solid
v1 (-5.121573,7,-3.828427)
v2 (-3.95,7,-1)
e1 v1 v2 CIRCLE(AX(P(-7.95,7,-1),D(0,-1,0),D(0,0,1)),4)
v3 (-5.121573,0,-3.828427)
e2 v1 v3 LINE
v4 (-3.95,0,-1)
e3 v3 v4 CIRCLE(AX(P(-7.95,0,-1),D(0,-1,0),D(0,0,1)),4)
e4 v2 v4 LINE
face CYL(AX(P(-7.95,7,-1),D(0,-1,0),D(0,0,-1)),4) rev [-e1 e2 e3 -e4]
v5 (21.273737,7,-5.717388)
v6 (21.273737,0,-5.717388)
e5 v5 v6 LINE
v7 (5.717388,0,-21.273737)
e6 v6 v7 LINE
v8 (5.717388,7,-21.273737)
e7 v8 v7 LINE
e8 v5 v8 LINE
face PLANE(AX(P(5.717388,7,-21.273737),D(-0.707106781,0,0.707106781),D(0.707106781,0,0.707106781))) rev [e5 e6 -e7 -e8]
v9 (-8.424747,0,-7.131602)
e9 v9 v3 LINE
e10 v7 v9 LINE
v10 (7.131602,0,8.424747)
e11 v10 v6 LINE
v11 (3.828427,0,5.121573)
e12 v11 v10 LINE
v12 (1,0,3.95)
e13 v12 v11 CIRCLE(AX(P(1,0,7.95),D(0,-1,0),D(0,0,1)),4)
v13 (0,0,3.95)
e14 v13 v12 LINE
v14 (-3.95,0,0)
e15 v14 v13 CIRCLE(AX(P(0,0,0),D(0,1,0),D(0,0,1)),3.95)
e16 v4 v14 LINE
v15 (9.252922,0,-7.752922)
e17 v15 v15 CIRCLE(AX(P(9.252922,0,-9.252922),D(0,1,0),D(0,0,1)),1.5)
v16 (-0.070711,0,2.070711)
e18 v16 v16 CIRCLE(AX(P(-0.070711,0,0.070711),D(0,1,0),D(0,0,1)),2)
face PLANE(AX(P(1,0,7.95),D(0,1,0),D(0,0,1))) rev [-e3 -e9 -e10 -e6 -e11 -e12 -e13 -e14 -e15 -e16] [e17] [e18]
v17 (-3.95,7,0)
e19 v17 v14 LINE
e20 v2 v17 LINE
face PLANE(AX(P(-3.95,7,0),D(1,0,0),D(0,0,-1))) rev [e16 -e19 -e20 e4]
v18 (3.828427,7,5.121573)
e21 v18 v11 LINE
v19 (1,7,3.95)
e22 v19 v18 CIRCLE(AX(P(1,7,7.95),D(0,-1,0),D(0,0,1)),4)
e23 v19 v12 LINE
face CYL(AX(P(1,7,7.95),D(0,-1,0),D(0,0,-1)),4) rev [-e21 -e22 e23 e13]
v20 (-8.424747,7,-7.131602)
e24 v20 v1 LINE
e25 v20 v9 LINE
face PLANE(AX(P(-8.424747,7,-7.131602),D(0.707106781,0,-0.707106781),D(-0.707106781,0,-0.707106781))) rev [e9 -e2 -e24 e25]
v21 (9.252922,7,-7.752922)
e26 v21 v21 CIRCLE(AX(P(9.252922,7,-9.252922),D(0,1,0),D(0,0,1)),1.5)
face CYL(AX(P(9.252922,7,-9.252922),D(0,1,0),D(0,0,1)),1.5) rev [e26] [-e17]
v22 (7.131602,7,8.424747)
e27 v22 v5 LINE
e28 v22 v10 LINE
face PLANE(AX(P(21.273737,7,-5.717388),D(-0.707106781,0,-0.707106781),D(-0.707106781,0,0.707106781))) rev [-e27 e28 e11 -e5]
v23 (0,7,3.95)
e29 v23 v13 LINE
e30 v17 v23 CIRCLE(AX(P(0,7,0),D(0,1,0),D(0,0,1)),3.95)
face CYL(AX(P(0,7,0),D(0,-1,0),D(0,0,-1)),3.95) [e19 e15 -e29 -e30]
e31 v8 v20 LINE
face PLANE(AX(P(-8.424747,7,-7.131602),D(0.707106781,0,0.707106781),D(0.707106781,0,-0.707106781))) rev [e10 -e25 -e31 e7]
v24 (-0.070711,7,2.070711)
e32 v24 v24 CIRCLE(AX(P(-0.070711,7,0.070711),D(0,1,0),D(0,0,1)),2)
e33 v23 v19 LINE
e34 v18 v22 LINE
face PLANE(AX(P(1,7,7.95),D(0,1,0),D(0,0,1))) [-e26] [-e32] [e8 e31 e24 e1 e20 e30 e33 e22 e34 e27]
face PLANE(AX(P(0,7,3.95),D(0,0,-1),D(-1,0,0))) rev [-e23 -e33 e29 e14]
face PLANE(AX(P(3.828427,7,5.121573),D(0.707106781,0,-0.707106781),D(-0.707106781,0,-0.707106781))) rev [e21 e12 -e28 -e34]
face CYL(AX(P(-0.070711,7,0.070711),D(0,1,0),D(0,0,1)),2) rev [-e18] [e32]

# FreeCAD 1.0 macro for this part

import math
import FreeCAD as App
import Part
import Sketcher
from FreeCAD import Vector
Q = App.Units.Quantity

doc = App.newDocument("Part")
params = doc.addObject("Spreadsheet::Sheet", "Params")
for row, (alias, value) in enumerate([
    ("sketch1_radius", "4 mm"),
    ("sketch1_width", "1 mm"),
    ("sketch1_radius2", "3.95 mm"),
    ("sketch1_length", "20 mm"),
    ("sketch1_length2", "22 mm"),
    ("pad1_length", "7 mm"),
    ("sketch2_diameter", "4 mm"),
    ("hole_diameter", "4 mm"),
    ("sketch3_diameter", "3 mm"),
    ("hole2_diameter", "3 mm"),
], start=1):
    params.set(f"A{row}", alias)
    params.set(f"B{row}", "=" + value)
    params.setAlias(f"B{row}", alias)

body = doc.addObject("PartDesign::Body", "Body")

sketch1 = body.newObject("Sketcher::SketchObject", "Sketch")
sketch1.AttachmentSupport = (doc.getObject("XZ_Plane"), [""])
sketch1.MapMode = "FlatFace"
sketch1.addGeometry([
    Part.LineSegment(Vector(0, 4, 0), Vector(1, 4, 0)),
    Part.ArcOfCircle(Part.Circle(Vector(1, 8, 0), Vector(0, 0, 1), 4), math.radians(-90), math.radians(-45)),
    Part.LineSegment(Vector(3.8, 5.1, 0), Vector(7.1, 8.4, 0)),
    Part.LineSegment(Vector(7.1, 8.4, 0), Vector(21.3, -5.7, 0)),
    Part.LineSegment(Vector(21.3, -5.7, 0), Vector(5.7, -21.3, 0)),
    Part.LineSegment(Vector(5.7, -21.3, 0), Vector(-8.4, -7.1, 0)),
    Part.LineSegment(Vector(-8.4, -7.1, 0), Vector(-5.1, -3.8, 0)),
    Part.ArcOfCircle(Part.Circle(Vector(-8, -1, 0), Vector(0, 0, 1), 4), math.radians(-45), math.radians(0)),
    Part.LineSegment(Vector(-4, -1, 0), Vector(-4, 0, 0)),
    Part.ArcOfCircle(Part.Circle(Vector(0, 0, 0), Vector(0, 0, 1), 3.9), math.radians(90), math.radians(180)),
], False)
sketch1.addConstraint([
    Sketcher.Constraint("Tangent", 0, 2, 1, 1),
    Sketcher.Constraint("Tangent", 1, 2, 2, 1),
    Sketcher.Constraint("Coincident", 2, 2, 3, 1),
    Sketcher.Constraint("Coincident", 3, 2, 4, 1),
    Sketcher.Constraint("Coincident", 4, 2, 5, 1),
    Sketcher.Constraint("Coincident", 5, 2, 6, 1),
    Sketcher.Constraint("Tangent", 6, 2, 7, 1),
    Sketcher.Constraint("Tangent", 7, 2, 8, 1),
    Sketcher.Constraint("Tangent", 8, 2, 9, 2),
    Sketcher.Constraint("Tangent", 9, 1, 0, 1),
    Sketcher.Constraint("Horizontal", 0),
    Sketcher.Constraint("Vertical", 8),
    Sketcher.Constraint("Coincident", 9, 3, -1, 1),
    Sketcher.Constraint("Equal", 1, 7),
    Sketcher.Constraint("Perpendicular", 2, 3),
    Sketcher.Constraint("Perpendicular", 3, 4),
    Sketcher.Constraint("Perpendicular", 4, 5),
    Sketcher.Constraint("Perpendicular", 5, 6),
    Sketcher.Constraint("Equal", 0, 8),
    Sketcher.Constraint("Equal", 3, 5),
    Sketcher.Constraint("Equal", 2, 6),
    Sketcher.Constraint("Radius", 1, Q("4 mm")),
    Sketcher.Constraint("DistanceX", 0, 1, 0, 2, Q("1 mm")),
    Sketcher.Constraint("Radius", 9, Q("3.95 mm")),
    Sketcher.Constraint("Distance", 3, Q("20 mm")),
    Sketcher.Constraint("Distance", 4, Q("22 mm")),
])
sketch1.setExpression("Constraints[21]", "Params.sketch1_radius")
sketch1.setExpression("Constraints[22]", "Params.sketch1_width")
sketch1.setExpression("Constraints[23]", "Params.sketch1_radius2")
sketch1.setExpression("Constraints[24]", "Params.sketch1_length")
sketch1.setExpression("Constraints[25]", "Params.sketch1_length2")
pad1 = body.newObject("PartDesign::Pad", "Pad")
pad1.Profile = sketch1
pad1.setExpression("Length", "Params.pad1_length")
pad1.Reversed = True

sketch2 = body.newObject("Sketcher::SketchObject", "Sketch001")
sketch2.AttachmentSupport = (doc.getObject("XZ_Plane"), [""])
sketch2.MapMode = "FlatFace"
sketch2.AttachmentOffset = App.Placement(Vector(0, 0, -7), App.Rotation())
sketch2.addGeometry(Part.Circle(Vector(-0.1, 0.1, 0), Vector(0, 0, 1), 2), False)
sketch2.addConstraint([
    Sketcher.Constraint("Diameter", 0, Q("4 mm")),
    Sketcher.Constraint("DistanceX", 0, 3, -1, 1, Q("0.070711 mm")),
    Sketcher.Constraint("DistanceY", -1, 1, 0, 3, Q("0.070711 mm")),
])
sketch2.setExpression("Constraints[0]", "Params.sketch2_diameter")
doc.recompute()
hole = body.newObject("PartDesign::Hole", "Hole")
hole.Profile = sketch2
hole.ThreadType = "None"
hole.setExpression("Diameter", "Params.hole_diameter")
hole.DepthType = "ThroughAll"
hole.Reversed = True

sketch3 = body.newObject("Sketcher::SketchObject", "Sketch002")
sketch3.AttachmentSupport = (doc.getObject("XZ_Plane"), [""])
sketch3.MapMode = "FlatFace"
sketch3.AttachmentOffset = App.Placement(Vector(0, 0, -7), App.Rotation())
sketch3.addGeometry(Part.Circle(Vector(9.3, -9.3, 0), Vector(0, 0, 1), 1.5), False)
sketch3.addConstraint([
    Sketcher.Constraint("Diameter", 0, Q("3 mm")),
    Sketcher.Constraint("DistanceX", -1, 1, 0, 3, Q("9.252922 mm")),
    Sketcher.Constraint("DistanceY", 0, 3, -1, 1, Q("9.252922 mm")),
])
sketch3.setExpression("Constraints[0]", "Params.sketch3_diameter")
doc.recompute()
hole2 = body.newObject("PartDesign::Hole", "Hole001")
hole2.Profile = sketch3
hole2.ThreadType = "None"
hole2.setExpression("Diameter", "Params.hole2_diameter")
hole2.DepthType = "ThroughAll"
hole2.Reversed = True

doc.recompute()
